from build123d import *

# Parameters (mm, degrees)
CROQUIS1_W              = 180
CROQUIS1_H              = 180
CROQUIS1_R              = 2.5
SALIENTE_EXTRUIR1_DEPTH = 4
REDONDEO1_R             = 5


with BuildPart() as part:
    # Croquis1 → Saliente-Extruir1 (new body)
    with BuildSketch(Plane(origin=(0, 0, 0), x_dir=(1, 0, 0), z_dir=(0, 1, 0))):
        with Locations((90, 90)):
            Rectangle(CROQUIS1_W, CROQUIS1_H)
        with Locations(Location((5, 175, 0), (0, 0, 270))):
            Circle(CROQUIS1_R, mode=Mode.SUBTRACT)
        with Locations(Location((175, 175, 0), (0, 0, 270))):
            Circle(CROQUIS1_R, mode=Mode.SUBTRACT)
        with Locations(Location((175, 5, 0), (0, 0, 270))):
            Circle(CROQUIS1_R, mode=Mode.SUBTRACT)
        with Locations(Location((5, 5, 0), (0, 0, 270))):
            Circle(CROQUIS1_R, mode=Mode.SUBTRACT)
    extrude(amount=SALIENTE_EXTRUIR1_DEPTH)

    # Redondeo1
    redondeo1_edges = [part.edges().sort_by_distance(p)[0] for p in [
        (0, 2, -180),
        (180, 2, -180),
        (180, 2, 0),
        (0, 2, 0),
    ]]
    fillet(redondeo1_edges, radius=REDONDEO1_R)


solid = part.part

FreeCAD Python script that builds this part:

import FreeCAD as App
import Part
import Sketcher
Q = App.Units.Quantity


def edges_at(feature, points):
    """Names of the edges that pass closest to the given points."""
    edges = feature.Shape.Edges
    near = lambda p: min(range(len(edges)), key=lambda i: edges[i].distToShape(Part.Vertex(*p))[0])
    return sorted({f"Edge{near(p) + 1}" for p in points})

doc = App.newDocument("Part")
body = doc.addObject("PartDesign::Body", "Body")

# Sketch on XZ plane
sketch1 = body.newObject("Sketcher::SketchObject", "Sketch")
sketch1.AttachmentSupport = (doc.getObject("XZ_Plane"), [""])
sketch1.MapMode = "FlatFace"
sketch1.addGeometry(Part.LineSegment(App.Vector(0, -180, 0), App.Vector(0, 0, 0)), False)
sketch1.addGeometry(Part.LineSegment(App.Vector(0, 0, 0), App.Vector(180, 0, 0)), False)
sketch1.addGeometry(Part.LineSegment(App.Vector(180, 0, 0), App.Vector(180, -180, 0)), False)
sketch1.addGeometry(Part.LineSegment(App.Vector(180, -180, 0), App.Vector(0, -180, 0)), False)
sketch1.addGeometry(Part.Circle(App.Vector(5, -5, 0), App.Vector(0, 0, 1), 2.5), False)
sketch1.addGeometry(Part.Circle(App.Vector(175, -5, 0), App.Vector(0, 0, 1), 2.5), False)
sketch1.addGeometry(Part.Circle(App.Vector(5, -175, 0), App.Vector(0, 0, 1), 2.5), False)
sketch1.addGeometry(Part.Circle(App.Vector(175, -175, 0), App.Vector(0, 0, 1), 2.5), False)
sketch1.addConstraint(Sketcher.Constraint("Coincident", 0, 2, 1, 1))
sketch1.addConstraint(Sketcher.Constraint("Coincident", 1, 2, 2, 1))
sketch1.addConstraint(Sketcher.Constraint("Coincident", 2, 2, 3, 1))
sketch1.addConstraint(Sketcher.Constraint("Coincident", 3, 2, 0, 1))
sketch1.addConstraint(Sketcher.Constraint("Vertical", 0))
sketch1.addConstraint(Sketcher.Constraint("Horizontal", 1))
sketch1.addConstraint(Sketcher.Constraint("Vertical", 2))
sketch1.addConstraint(Sketcher.Constraint("Horizontal", 3))
sketch1.addConstraint(Sketcher.Constraint("Coincident", 0, 2, -1, 1))
sketch1.addConstraint(Sketcher.Constraint("Equal", 4, 5))
sketch1.addConstraint(Sketcher.Constraint("Equal", 5, 6))
sketch1.addConstraint(Sketcher.Constraint("Equal", 6, 7))
sketch1.addConstraint(Sketcher.Constraint("Horizontal", 4, 3, 5, 3))
sketch1.addConstraint(Sketcher.Constraint("Horizontal", 6, 3, 7, 3))
sketch1.addConstraint(Sketcher.Constraint("Vertical", 4, 3, 6, 3))
sketch1.addConstraint(Sketcher.Constraint("Vertical", 5, 3, 7, 3))
sketch1.addConstraint(Sketcher.Constraint("Equal", 3, 0))
sketch1.addConstraint(Sketcher.Constraint("Diameter", 4, Q("5 mm")))
sketch1.addConstraint(Sketcher.Constraint("DistanceX", 1, 1, 1, 2, Q("180 mm")))
sketch1.addConstraint(Sketcher.Constraint("DistanceX", -1, 1, 4, 3, Q("5 mm")))
sketch1.addConstraint(Sketcher.Constraint("DistanceY", 4, 3, -1, 1, Q("5 mm")))
sketch1.addConstraint(Sketcher.Constraint("DistanceX", -1, 1, 5, 3, Q("175 mm")))
sketch1.addConstraint(Sketcher.Constraint("DistanceY", 6, 3, -1, 1, Q("175 mm")))
pad1 = body.newObject("PartDesign::Pad", "Pad")
pad1.Profile = sketch1
pad1.Length = 4
pad1.Reversed = True
doc.recompute()

fillet = body.newObject("PartDesign::Fillet", "Fillet")
fillet.Base = (pad1, edges_at(pad1, [
    (0, 2, -180),
    (180, 2, -180),
    (180, 2, 0),
    (0, 2, 0),
]))
fillet.Radius = 5

doc.recompute()
